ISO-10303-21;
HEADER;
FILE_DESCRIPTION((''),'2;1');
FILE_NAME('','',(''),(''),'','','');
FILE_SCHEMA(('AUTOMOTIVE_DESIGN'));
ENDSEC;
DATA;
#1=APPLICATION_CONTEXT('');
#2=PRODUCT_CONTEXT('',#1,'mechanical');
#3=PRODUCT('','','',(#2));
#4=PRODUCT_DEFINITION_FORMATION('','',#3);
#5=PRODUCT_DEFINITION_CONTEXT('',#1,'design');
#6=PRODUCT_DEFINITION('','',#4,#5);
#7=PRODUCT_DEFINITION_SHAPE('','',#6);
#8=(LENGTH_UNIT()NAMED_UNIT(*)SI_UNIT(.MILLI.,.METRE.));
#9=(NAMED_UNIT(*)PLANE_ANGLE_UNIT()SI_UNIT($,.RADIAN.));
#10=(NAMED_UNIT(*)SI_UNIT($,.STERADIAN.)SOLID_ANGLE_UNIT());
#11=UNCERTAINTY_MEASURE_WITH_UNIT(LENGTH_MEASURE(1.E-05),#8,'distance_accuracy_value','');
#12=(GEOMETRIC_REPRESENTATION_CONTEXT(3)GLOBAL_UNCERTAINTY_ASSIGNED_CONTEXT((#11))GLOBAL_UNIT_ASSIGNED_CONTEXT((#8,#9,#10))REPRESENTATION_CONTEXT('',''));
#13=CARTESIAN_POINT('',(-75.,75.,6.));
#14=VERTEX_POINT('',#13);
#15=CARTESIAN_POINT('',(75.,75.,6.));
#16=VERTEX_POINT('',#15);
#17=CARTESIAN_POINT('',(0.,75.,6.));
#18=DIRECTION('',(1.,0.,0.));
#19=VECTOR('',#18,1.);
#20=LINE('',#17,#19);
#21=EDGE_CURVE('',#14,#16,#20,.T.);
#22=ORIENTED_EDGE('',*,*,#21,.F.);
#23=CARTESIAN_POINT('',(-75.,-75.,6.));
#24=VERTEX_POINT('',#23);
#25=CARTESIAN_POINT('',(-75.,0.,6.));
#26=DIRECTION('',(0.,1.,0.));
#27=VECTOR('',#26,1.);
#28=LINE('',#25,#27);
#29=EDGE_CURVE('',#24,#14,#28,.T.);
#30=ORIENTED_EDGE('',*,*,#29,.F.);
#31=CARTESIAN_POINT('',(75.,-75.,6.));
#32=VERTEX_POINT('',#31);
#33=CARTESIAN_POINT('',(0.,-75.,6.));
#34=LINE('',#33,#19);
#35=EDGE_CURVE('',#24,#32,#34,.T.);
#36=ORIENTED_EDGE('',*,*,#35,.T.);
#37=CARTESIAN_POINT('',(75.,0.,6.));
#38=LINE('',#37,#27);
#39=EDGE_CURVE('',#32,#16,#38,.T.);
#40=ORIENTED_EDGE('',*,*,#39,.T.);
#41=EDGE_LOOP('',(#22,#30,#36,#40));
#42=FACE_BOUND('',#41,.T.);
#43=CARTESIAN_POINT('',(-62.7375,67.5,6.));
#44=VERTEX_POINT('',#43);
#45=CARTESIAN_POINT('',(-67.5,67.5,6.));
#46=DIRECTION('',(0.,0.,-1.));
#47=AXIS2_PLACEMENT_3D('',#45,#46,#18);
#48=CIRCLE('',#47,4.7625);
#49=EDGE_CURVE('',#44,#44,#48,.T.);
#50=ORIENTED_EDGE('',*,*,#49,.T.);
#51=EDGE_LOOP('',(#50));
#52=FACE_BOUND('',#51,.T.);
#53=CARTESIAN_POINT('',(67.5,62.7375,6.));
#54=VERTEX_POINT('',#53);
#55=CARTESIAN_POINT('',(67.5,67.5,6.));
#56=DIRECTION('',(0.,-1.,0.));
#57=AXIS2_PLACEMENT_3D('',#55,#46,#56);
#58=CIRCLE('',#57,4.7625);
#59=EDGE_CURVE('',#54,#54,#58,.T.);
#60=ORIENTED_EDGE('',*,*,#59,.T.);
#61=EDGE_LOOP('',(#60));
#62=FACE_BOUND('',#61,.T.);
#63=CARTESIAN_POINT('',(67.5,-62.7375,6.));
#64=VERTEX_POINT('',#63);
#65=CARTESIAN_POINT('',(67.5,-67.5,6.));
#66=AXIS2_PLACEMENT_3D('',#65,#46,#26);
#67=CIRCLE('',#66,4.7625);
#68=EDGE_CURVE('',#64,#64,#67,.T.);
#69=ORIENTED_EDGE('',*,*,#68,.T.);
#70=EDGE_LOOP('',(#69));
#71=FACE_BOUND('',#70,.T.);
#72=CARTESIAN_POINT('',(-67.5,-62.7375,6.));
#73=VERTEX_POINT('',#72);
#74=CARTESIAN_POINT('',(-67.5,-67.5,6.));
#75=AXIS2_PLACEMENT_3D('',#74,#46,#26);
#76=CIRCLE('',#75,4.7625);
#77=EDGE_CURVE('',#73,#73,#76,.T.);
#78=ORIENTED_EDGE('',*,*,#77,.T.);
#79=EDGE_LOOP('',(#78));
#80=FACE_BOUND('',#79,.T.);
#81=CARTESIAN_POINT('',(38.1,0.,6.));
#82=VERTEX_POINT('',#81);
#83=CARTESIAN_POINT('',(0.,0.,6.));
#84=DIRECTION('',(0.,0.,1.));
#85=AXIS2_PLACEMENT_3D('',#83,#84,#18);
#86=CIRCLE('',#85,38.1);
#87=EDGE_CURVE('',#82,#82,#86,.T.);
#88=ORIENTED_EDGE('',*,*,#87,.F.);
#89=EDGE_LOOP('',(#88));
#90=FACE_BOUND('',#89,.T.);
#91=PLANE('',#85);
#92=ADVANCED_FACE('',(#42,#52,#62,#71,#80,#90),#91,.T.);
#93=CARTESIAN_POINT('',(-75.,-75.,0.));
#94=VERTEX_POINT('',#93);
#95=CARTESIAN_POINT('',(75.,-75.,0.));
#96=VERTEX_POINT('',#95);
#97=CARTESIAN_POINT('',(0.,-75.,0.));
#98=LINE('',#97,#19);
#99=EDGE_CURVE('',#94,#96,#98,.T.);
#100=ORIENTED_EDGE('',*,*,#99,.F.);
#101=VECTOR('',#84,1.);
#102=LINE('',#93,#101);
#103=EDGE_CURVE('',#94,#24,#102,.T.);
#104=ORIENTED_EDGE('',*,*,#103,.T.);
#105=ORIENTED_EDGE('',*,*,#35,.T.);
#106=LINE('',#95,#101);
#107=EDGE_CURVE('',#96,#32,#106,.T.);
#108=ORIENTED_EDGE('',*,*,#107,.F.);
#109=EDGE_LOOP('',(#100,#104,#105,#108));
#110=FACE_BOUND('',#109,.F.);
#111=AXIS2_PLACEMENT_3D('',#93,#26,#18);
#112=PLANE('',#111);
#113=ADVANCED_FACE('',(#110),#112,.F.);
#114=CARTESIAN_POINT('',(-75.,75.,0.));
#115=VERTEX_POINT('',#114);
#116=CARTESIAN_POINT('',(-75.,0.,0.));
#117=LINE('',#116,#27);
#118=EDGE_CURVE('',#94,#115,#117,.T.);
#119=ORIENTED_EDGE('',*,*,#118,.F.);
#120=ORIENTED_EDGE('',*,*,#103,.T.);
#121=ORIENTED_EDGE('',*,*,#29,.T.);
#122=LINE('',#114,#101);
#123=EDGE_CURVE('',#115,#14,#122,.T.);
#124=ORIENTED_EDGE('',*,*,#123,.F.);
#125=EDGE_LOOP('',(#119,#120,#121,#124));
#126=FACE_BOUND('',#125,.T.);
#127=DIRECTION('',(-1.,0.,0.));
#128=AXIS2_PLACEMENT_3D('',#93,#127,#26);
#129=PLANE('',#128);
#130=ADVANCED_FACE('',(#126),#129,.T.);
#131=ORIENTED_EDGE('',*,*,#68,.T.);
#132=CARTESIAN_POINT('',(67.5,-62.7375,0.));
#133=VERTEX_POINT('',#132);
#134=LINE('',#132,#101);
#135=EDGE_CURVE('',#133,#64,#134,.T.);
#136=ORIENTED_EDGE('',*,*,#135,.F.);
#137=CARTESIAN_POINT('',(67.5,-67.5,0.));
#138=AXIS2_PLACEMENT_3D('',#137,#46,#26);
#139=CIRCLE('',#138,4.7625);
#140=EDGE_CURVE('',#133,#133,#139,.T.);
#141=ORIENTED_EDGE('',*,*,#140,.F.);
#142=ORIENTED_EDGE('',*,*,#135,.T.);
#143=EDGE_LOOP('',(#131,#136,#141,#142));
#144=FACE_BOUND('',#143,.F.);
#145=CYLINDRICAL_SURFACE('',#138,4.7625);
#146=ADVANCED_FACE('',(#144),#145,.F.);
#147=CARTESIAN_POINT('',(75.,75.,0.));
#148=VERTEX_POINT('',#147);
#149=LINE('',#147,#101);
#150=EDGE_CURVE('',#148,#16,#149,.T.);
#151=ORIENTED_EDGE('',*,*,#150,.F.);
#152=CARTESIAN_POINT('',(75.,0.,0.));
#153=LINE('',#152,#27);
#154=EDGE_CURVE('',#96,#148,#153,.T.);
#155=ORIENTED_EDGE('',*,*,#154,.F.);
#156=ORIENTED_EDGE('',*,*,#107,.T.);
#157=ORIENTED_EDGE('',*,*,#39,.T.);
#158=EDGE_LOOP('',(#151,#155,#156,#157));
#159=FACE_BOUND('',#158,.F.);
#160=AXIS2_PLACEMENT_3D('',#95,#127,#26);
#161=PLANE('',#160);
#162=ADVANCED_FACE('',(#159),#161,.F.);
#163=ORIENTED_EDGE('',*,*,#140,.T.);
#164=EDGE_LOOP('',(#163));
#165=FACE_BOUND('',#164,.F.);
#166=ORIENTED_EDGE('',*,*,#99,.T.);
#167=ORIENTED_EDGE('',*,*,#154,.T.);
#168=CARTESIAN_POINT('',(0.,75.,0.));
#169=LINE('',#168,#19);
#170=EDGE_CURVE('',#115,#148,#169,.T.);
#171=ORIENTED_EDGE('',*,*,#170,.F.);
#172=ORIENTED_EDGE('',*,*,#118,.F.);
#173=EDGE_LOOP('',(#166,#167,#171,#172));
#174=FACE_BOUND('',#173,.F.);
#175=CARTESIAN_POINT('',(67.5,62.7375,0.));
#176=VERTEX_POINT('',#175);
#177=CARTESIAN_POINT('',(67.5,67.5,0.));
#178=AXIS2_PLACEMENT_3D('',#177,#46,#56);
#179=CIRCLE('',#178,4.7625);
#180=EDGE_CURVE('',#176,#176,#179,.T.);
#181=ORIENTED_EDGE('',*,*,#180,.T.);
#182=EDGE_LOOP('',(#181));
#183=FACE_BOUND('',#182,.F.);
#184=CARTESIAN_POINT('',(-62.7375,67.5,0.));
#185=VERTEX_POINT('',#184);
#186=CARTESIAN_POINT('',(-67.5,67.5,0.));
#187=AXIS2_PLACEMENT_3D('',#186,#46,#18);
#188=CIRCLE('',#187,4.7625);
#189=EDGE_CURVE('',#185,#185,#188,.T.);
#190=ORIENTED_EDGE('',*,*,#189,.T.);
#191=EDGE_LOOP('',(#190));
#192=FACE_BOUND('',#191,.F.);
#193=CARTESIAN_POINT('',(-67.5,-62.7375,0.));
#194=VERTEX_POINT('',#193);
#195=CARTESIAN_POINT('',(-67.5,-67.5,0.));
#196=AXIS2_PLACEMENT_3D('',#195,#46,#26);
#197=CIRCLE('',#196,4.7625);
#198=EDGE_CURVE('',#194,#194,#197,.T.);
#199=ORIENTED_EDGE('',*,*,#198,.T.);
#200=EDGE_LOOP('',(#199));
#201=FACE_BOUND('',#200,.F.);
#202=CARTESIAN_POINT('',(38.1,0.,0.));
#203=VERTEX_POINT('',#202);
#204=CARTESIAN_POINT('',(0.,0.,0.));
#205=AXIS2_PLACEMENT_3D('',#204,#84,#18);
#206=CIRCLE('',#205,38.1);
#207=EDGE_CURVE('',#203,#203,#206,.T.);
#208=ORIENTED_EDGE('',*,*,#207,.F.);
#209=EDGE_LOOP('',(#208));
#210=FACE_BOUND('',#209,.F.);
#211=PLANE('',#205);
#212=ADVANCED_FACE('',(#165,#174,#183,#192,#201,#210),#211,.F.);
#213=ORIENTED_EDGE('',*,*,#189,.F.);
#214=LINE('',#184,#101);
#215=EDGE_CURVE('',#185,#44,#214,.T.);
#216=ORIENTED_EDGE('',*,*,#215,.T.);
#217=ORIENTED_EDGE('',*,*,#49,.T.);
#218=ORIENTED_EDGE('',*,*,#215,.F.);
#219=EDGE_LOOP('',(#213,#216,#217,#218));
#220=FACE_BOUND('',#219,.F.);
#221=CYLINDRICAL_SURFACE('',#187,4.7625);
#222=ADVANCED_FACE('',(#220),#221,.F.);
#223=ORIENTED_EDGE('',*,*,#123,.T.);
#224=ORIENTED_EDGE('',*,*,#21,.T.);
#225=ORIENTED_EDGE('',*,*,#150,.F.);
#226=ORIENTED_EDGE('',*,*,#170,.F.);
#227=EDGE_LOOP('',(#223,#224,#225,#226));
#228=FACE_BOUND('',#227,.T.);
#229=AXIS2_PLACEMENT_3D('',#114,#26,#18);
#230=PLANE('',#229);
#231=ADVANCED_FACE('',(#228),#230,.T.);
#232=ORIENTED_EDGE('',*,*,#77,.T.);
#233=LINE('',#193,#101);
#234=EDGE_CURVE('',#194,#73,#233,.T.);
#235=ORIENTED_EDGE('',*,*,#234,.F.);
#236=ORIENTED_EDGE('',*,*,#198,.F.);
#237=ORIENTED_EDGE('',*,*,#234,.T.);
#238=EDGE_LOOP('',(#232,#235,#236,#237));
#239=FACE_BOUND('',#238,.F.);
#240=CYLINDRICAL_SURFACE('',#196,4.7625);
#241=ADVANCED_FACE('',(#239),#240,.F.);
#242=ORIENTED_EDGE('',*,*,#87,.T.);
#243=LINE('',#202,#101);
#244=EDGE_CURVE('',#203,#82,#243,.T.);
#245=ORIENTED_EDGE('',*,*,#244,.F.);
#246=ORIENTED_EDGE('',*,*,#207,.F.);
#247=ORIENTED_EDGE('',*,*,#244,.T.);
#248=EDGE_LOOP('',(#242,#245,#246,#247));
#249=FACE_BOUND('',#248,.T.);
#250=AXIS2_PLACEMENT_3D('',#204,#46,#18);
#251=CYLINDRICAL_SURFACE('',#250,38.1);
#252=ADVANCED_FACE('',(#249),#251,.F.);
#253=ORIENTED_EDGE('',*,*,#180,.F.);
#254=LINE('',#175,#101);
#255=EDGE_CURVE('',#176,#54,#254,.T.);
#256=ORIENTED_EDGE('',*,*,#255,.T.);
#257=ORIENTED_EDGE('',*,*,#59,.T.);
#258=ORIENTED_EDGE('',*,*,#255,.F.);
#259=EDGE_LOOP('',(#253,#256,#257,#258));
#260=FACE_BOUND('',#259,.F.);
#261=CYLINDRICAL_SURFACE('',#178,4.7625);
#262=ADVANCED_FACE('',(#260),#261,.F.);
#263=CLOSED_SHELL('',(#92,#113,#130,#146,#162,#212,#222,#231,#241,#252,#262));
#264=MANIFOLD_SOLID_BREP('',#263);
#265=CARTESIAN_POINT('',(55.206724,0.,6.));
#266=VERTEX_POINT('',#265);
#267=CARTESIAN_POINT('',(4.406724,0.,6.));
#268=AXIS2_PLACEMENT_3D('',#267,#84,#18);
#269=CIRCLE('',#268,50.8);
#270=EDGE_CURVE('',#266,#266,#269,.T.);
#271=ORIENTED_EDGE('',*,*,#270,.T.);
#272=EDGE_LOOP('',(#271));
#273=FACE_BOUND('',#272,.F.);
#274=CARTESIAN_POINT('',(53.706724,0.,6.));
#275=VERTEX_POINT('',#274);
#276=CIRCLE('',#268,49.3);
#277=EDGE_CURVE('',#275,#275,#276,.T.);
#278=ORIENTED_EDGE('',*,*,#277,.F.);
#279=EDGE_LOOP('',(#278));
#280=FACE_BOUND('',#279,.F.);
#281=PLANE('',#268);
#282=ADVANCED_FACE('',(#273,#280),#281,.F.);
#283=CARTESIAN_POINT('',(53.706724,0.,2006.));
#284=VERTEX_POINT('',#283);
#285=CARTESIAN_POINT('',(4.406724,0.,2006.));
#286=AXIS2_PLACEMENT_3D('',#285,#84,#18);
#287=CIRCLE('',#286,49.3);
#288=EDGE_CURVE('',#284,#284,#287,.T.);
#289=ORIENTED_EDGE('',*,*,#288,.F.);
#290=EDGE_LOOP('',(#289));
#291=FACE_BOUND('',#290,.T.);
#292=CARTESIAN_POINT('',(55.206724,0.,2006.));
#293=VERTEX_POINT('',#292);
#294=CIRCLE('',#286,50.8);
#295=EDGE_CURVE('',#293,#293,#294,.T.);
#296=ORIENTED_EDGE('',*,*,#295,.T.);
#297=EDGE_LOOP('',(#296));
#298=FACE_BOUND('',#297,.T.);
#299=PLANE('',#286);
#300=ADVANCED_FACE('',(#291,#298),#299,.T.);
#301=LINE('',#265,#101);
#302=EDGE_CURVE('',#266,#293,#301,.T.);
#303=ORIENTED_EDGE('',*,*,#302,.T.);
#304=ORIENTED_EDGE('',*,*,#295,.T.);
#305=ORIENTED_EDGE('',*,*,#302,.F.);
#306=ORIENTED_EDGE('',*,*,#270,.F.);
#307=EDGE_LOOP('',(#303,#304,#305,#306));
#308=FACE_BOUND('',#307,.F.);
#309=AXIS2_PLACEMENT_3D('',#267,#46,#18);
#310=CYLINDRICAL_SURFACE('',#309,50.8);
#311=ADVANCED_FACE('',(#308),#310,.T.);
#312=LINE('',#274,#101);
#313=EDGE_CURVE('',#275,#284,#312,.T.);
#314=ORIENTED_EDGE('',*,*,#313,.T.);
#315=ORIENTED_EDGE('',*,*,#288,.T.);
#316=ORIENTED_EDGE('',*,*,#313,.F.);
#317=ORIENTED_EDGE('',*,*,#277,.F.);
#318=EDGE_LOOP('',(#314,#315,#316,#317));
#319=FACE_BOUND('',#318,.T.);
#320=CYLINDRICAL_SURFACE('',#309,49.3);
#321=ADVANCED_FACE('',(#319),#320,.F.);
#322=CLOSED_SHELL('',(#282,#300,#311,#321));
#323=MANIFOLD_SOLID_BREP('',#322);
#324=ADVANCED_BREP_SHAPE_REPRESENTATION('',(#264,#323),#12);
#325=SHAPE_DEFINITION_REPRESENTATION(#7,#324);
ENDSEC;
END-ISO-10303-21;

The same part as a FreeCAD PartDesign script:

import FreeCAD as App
import Part
import Sketcher

V = App.Vector
Q = App.Units.Quantity


def add_polygon(sketch, points):
    """Adds a closed chain of lines whose ends are joined by coincident constraints."""
    first, n = sketch.GeometryCount, len(points)
    for a, b in zip(points, points[1:] + points[:1]):
        sketch.addGeometry(Part.LineSegment(App.Vector(*a, 0), App.Vector(*b, 0)), False)
    for i in range(n):
        sketch.addConstraint(Sketcher.Constraint("Coincident", first + i, 2, first + (i + 1) % n, 1))

doc = App.newDocument("Part")
body = doc.addObject("PartDesign::Body", "Body")

sketch1 = doc.addObject("Sketcher::SketchObject", "Sketch")
body.addObject(sketch1)
sketch1.AttachmentSupport = (doc.XY_Plane, [""])
sketch1.MapMode = "FlatFace"
add_polygon(sketch1, [(-75, 75), (-75, -75), (75, -75), (75, 75)])
sketch1.addGeometry(Part.Circle(V(-67.5, -67.5, 0), V(0, 0, 1), 4.7625), False)
sketch1.addGeometry(Part.Circle(V(67.5, -67.5, 0), V(0, 0, 1), 4.7625), False)
sketch1.addGeometry(Part.Circle(V(-67.5, 67.5, 0), V(0, 0, 1), 4.7625), False)
sketch1.addGeometry(Part.Circle(V(0, 0, 0), V(0, 0, 1), 38.1), False)
sketch1.addGeometry(Part.Circle(V(67.5, 67.5, 0), V(0, 0, 1), 4.7625), False)
sketch1.addConstraint([
    Sketcher.Constraint("Vertical", 0),
    Sketcher.Constraint("Horizontal", 1),
    Sketcher.Constraint("Vertical", 2),
    Sketcher.Constraint("Horizontal", 3),
    Sketcher.Constraint("Coincident", 7, 3, -1, 1),
    Sketcher.Constraint("Equal", 4, 5),
    Sketcher.Constraint("Equal", 5, 6),
    Sketcher.Constraint("Equal", 6, 8),
    Sketcher.Constraint("Symmetric", 5, 3, 6, 3, -1, 1),
    Sketcher.Constraint("Symmetric", 4, 3, 8, 3, -1, 1),
    Sketcher.Constraint("Symmetric", 0, 2, 2, 2, -1, 1),
    Sketcher.Constraint("Symmetric", 4, 3, 5, 3, -2),
    Sketcher.Constraint("Equal", 3, 0),
    Sketcher.Constraint("Diameter", 7, Q("76.2 mm")),
    Sketcher.Constraint("DistanceX", 1, 1, 1, 2, Q("150 mm")),
    Sketcher.Constraint("Diameter", 4, Q("9.525 mm")),
    Sketcher.Constraint("DistanceX", 4, 3, 5, 3, Q("135 mm")),
    Sketcher.Constraint("DistanceY", 4, 3, 6, 3, Q("135 mm")),
])
pad1 = doc.addObject("PartDesign::Pad", "Pad")
body.addObject(pad1)
pad1.Profile = sketch1
pad1.Length = 6
body2 = doc.addObject("PartDesign::Body", "Body001")

sketch2 = doc.addObject("Sketcher::SketchObject", "Sketch001")
body2.addObject(sketch2)
sketch2.AttachmentSupport = (doc.getObject("XY_Plane001"), [""])
sketch2.MapMode = "FlatFace"
sketch2.addGeometry(Part.Circle(V(202.5, -67.5, 0), V(0, 0, 1), 4.7625), False)
sketch2.addConstraint([
    Sketcher.Constraint("Diameter", 0, Q("9.525 mm")),
    Sketcher.Constraint("DistanceX", -1, 1, 0, 3, Q("202.5 mm")),
    Sketcher.Constraint("DistanceY", 0, 3, -1, 1, Q("67.5 mm")),
])
pad2 = doc.addObject("PartDesign::Pad", "Pad001")
body2.addObject(pad2)
pad2.Profile = sketch2
pad2.Length = 6
body3 = doc.addObject("PartDesign::Body", "Body002")

sketch3 = doc.addObject("Sketcher::SketchObject", "Sketch002")
body3.addObject(sketch3)
sketch3.AttachmentSupport = (doc.getObject("XY_Plane002"), [""])
sketch3.MapMode = "FlatFace"
sketch3.AttachmentOffset = App.Placement(V(0, 0, 6), App.Rotation())
sketch3.addGeometry([
    Part.Circle(V(4.406724, 0, 0), V(0, 0, 1), 50.8),
    Part.Circle(V(4.406724, 0, 0), V(0, 0, 1), 49.3),
], False)
sketch3.addConstraint([
    Sketcher.Constraint("Coincident", 1, 3, 0, 3),
    Sketcher.Constraint("PointOnObject", 0, 3, -1),
    Sketcher.Constraint("Diameter", 0, Q("101.6 mm")),
    Sketcher.Constraint("Diameter", 1, Q("98.6 mm")),
    Sketcher.Constraint("DistanceX", -1, 1, 0, 3, Q("4.406724 mm")),
])
pad3 = doc.addObject("PartDesign::Pad", "Pad002")
body3.addObject(pad3)
pad3.Profile = sketch3
pad3.Length = 2000
body2.Visibility = False

doc.recompute()
